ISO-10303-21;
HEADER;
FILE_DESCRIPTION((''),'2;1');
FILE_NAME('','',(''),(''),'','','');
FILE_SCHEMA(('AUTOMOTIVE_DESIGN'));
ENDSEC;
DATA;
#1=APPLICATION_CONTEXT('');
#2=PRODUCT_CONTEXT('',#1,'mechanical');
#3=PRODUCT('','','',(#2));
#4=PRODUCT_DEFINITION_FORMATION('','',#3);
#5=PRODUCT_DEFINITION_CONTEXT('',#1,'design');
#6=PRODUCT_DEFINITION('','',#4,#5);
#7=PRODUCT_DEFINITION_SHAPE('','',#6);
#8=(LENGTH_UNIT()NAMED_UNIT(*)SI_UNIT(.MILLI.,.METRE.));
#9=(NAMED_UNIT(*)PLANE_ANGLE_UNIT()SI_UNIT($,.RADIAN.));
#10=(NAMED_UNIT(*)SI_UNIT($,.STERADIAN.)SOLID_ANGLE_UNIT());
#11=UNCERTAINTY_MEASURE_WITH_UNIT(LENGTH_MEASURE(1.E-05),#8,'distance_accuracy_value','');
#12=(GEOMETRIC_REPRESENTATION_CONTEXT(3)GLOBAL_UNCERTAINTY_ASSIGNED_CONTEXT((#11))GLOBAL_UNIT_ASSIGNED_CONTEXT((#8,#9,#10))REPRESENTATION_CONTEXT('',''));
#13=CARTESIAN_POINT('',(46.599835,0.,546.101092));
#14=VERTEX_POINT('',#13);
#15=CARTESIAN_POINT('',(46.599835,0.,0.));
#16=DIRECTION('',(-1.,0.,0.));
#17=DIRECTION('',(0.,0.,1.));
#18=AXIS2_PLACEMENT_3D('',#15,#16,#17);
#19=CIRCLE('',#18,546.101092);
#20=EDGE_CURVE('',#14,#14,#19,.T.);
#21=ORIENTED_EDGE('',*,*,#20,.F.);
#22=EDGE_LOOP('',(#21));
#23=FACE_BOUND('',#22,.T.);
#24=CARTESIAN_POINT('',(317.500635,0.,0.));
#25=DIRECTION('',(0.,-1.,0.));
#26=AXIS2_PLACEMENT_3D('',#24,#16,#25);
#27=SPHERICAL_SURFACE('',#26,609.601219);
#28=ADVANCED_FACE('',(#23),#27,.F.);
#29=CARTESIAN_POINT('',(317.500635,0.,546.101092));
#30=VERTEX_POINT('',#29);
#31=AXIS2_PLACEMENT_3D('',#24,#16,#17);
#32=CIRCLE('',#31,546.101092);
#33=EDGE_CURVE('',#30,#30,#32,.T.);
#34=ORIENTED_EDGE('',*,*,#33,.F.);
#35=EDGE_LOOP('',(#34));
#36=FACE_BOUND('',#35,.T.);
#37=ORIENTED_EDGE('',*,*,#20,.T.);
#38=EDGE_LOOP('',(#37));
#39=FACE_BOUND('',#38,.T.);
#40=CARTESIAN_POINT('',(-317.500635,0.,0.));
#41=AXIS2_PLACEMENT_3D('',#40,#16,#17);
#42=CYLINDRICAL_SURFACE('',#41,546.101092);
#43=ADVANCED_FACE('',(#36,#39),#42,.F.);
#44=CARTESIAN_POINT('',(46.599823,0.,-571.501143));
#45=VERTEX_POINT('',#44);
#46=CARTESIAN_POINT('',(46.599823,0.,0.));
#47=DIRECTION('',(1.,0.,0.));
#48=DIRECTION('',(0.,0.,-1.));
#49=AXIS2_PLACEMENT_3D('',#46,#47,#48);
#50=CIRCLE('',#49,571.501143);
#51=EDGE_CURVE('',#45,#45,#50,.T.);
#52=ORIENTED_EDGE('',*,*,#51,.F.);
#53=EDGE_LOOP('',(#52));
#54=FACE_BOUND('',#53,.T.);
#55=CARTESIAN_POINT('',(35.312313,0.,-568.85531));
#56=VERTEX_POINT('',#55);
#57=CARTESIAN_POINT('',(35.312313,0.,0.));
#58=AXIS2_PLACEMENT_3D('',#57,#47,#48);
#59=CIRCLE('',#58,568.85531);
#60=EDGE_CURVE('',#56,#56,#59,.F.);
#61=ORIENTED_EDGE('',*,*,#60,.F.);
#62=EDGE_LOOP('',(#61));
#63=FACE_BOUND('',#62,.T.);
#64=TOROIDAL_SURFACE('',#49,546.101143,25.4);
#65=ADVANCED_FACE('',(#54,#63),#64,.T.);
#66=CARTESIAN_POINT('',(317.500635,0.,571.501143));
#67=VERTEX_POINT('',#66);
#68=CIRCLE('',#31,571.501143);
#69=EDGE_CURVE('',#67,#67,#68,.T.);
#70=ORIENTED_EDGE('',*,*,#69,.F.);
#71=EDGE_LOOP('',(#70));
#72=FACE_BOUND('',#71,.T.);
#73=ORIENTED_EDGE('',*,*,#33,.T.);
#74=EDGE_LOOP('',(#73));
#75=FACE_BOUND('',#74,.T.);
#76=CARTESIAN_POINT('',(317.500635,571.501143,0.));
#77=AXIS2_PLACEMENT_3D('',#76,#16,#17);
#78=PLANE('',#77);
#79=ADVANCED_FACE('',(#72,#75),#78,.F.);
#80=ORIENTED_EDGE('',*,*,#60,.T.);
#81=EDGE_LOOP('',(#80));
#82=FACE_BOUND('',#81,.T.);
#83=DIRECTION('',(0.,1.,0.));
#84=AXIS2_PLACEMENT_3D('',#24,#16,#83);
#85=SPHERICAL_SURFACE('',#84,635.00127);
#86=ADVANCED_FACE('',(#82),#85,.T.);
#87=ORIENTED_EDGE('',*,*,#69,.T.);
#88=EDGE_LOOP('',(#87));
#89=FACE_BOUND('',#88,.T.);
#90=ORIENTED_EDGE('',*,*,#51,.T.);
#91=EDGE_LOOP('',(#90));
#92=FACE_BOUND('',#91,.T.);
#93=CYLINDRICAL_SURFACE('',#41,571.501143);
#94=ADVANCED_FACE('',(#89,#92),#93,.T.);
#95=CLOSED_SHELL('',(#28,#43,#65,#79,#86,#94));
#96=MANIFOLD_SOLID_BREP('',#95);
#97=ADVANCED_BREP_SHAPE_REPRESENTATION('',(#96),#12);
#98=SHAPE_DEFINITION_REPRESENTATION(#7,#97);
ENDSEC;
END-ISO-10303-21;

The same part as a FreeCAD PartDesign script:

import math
import FreeCAD as App
import Part
import Sketcher

V = App.Vector
Q = App.Units.Quantity


def edges_at(feature, points):
    """Names of the edges that pass closest to the given points."""
    edges = feature.Shape.Edges
    near = lambda p: min(range(len(edges)), key=lambda i: edges[i].distToShape(Part.Vertex(*p))[0])
    return sorted({f"Edge{near(p) + 1}" for p in points})

doc = App.newDocument("Part")
body = doc.addObject("PartDesign::Body", "Body")

# Sketch on XY plane
sketch1 = doc.addObject("Sketcher::SketchObject", "Sketch")
body.addObject(sketch1)
sketch1.AttachmentSupport = (doc.XY_Plane, [""])
sketch1.MapMode = "FlatFace"
sketch1.addGeometry(Part.LineSegment(V(318, 572, 0), V(41, 572, 0)), False)
sketch1.addGeometry(Part.ArcOfCircle(Part.Circle(V(318, 0, 0), V(0, 0, 1), 635), math.radians(116), math.radians(180)), False)
sketch1.addGeometry(Part.LineSegment(V(-318, 0, 0), V(-292, 0, 0)), False)
sketch1.addGeometry(Part.ArcOfCircle(Part.Circle(V(318, 0, 0), V(0, 0, 1), 610), math.radians(116), math.radians(180)), False)
sketch1.addGeometry(Part.LineSegment(V(47, 546, 0), V(318, 546, 0)), False)
sketch1.addGeometry(Part.LineSegment(V(318, 546, 0), V(318, 572, 0)), False)
sketch1.addConstraint(Sketcher.Constraint("Coincident", 0, 2, 1, 1))
sketch1.addConstraint(Sketcher.Constraint("Coincident", 1, 2, 2, 1))
sketch1.addConstraint(Sketcher.Constraint("Coincident", 2, 2, 3, 2))
sketch1.addConstraint(Sketcher.Constraint("Coincident", 3, 1, 4, 1))
sketch1.addConstraint(Sketcher.Constraint("Coincident", 4, 2, 5, 1))
sketch1.addConstraint(Sketcher.Constraint("Coincident", 5, 2, 0, 1))
sketch1.addConstraint(Sketcher.Constraint("Horizontal", 0))
sketch1.addConstraint(Sketcher.Constraint("Horizontal", 2))
sketch1.addConstraint(Sketcher.Constraint("Horizontal", 4))
sketch1.addConstraint(Sketcher.Constraint("Vertical", 5))
sketch1.addConstraint(Sketcher.Constraint("Coincident", 3, 3, 1, 3))
sketch1.addConstraint(Sketcher.Constraint("PointOnObject", 1, 3, -1))
sketch1.addConstraint(Sketcher.Constraint("PointOnObject", 2, 2, -1))
sketch1.addConstraint(Sketcher.Constraint("Vertical", 3, 3, 4, 2))
sketch1.addConstraint(Sketcher.Constraint("Equal", 2, 5))
sketch1.addConstraint(Sketcher.Constraint("Radius", 1, 635.00127))
sketch1.addConstraint(Sketcher.Constraint("Radius", 3, 609.601219))
sketch1.addConstraint(Sketcher.Constraint("DistanceX", 4, 1, 4, 2, 270.9008))
sketch1.addConstraint(Sketcher.Constraint("DistanceX", -1, 1, 0, 2, 40.709999))
revolution = doc.addObject("PartDesign::Revolution", "Revolution")
body.addObject(revolution)
revolution.Profile = sketch1
revolution.ReferenceAxis = (sketch1, ["H_Axis"])
revolution.Angle = 360
doc.recompute()

fillet = doc.addObject("PartDesign::Fillet", "Fillet")
body.addObject(fillet)
fillet.Base = (revolution, edges_at(revolution, [(40.71, -571.501, 0)]))
fillet.Radius = Q("1 in")

doc.recompute()
